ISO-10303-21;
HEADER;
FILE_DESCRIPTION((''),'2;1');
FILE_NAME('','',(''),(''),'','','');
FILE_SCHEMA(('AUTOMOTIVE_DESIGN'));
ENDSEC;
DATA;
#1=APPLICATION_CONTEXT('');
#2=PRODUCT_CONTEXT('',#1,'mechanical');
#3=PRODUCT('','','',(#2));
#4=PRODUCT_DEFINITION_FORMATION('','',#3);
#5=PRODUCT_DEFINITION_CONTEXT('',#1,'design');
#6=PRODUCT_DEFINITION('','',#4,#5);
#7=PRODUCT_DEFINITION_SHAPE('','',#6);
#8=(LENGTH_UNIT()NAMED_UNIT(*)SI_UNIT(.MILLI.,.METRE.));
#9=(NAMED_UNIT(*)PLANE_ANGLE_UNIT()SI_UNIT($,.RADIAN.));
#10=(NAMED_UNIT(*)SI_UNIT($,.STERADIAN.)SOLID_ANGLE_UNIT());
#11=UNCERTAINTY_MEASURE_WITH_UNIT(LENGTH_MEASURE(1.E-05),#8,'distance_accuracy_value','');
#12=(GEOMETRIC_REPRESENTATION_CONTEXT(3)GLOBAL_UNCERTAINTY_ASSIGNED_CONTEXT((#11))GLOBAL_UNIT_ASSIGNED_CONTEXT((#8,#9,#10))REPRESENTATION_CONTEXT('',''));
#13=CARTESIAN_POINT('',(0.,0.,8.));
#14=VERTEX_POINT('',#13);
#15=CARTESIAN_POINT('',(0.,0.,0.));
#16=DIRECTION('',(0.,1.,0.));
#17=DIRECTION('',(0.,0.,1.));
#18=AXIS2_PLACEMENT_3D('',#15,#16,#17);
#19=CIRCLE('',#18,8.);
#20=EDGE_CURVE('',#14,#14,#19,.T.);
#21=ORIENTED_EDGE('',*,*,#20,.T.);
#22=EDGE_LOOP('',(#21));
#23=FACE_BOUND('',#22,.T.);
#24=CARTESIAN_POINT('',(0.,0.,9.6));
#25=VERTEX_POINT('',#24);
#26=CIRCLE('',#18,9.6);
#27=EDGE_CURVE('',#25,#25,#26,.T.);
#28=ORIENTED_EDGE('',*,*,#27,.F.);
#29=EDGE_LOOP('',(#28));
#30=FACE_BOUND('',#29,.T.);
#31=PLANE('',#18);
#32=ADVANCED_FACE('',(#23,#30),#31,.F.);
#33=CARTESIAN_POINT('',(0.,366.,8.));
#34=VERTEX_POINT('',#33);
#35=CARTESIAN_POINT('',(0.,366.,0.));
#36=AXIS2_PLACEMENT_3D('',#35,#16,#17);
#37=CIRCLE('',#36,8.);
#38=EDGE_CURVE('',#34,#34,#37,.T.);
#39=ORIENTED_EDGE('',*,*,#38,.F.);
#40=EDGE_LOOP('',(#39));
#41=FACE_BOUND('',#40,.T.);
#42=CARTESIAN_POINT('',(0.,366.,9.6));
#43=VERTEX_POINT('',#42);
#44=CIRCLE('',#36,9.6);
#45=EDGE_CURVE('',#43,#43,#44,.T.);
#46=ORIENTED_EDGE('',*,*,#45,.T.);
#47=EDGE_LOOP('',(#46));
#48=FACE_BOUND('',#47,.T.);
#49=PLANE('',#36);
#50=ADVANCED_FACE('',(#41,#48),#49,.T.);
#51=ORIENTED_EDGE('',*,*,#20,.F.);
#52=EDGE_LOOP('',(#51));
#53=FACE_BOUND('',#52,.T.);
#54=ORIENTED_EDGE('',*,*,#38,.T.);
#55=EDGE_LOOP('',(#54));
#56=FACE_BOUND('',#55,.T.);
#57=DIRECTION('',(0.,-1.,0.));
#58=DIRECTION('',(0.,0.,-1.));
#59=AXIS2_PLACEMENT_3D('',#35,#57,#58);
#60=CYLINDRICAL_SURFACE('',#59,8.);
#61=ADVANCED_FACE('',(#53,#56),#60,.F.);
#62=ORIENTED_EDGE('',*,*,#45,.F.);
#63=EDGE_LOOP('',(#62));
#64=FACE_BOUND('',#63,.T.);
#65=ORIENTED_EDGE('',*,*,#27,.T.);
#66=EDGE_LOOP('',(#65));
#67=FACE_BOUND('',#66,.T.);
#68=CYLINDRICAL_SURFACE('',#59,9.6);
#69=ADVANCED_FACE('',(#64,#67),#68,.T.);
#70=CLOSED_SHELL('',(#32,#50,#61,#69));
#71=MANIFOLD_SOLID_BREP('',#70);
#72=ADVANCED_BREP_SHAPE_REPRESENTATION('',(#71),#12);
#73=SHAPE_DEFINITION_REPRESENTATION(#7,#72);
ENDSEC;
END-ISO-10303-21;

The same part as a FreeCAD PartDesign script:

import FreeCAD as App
import Part
import Sketcher

V = App.Vector

doc = App.newDocument("Part")
body = doc.addObject("PartDesign::Body", "Body")

# Sketch on XZ plane
sketch1 = body.newObject("Sketcher::SketchObject", "Sketch")
sketch1.AttachmentSupport = (doc.getObject("XZ_Plane"), [""])
sketch1.MapMode = "FlatFace"
sketch1.addGeometry([
    Part.Circle(V(0, 0, 0), V(0, 0, 1), 9.6),
    Part.Circle(V(0, 0, 0), V(0, 0, 1), 8),
], False)
sketch1.addConstraint([
    Sketcher.Constraint("Coincident", 0, 3, -1, 1),
    Sketcher.Constraint("Coincident", 1, 3, -1, 1),
    Sketcher.Constraint("Diameter", 1, 16.0),
    Sketcher.Constraint("Diameter", 0, 19.2),
])
pad1 = body.newObject("PartDesign::Pad", "Pad")
pad1.Profile = sketch1
pad1.Length = 366
pad1.Reversed = True

doc.recompute()
